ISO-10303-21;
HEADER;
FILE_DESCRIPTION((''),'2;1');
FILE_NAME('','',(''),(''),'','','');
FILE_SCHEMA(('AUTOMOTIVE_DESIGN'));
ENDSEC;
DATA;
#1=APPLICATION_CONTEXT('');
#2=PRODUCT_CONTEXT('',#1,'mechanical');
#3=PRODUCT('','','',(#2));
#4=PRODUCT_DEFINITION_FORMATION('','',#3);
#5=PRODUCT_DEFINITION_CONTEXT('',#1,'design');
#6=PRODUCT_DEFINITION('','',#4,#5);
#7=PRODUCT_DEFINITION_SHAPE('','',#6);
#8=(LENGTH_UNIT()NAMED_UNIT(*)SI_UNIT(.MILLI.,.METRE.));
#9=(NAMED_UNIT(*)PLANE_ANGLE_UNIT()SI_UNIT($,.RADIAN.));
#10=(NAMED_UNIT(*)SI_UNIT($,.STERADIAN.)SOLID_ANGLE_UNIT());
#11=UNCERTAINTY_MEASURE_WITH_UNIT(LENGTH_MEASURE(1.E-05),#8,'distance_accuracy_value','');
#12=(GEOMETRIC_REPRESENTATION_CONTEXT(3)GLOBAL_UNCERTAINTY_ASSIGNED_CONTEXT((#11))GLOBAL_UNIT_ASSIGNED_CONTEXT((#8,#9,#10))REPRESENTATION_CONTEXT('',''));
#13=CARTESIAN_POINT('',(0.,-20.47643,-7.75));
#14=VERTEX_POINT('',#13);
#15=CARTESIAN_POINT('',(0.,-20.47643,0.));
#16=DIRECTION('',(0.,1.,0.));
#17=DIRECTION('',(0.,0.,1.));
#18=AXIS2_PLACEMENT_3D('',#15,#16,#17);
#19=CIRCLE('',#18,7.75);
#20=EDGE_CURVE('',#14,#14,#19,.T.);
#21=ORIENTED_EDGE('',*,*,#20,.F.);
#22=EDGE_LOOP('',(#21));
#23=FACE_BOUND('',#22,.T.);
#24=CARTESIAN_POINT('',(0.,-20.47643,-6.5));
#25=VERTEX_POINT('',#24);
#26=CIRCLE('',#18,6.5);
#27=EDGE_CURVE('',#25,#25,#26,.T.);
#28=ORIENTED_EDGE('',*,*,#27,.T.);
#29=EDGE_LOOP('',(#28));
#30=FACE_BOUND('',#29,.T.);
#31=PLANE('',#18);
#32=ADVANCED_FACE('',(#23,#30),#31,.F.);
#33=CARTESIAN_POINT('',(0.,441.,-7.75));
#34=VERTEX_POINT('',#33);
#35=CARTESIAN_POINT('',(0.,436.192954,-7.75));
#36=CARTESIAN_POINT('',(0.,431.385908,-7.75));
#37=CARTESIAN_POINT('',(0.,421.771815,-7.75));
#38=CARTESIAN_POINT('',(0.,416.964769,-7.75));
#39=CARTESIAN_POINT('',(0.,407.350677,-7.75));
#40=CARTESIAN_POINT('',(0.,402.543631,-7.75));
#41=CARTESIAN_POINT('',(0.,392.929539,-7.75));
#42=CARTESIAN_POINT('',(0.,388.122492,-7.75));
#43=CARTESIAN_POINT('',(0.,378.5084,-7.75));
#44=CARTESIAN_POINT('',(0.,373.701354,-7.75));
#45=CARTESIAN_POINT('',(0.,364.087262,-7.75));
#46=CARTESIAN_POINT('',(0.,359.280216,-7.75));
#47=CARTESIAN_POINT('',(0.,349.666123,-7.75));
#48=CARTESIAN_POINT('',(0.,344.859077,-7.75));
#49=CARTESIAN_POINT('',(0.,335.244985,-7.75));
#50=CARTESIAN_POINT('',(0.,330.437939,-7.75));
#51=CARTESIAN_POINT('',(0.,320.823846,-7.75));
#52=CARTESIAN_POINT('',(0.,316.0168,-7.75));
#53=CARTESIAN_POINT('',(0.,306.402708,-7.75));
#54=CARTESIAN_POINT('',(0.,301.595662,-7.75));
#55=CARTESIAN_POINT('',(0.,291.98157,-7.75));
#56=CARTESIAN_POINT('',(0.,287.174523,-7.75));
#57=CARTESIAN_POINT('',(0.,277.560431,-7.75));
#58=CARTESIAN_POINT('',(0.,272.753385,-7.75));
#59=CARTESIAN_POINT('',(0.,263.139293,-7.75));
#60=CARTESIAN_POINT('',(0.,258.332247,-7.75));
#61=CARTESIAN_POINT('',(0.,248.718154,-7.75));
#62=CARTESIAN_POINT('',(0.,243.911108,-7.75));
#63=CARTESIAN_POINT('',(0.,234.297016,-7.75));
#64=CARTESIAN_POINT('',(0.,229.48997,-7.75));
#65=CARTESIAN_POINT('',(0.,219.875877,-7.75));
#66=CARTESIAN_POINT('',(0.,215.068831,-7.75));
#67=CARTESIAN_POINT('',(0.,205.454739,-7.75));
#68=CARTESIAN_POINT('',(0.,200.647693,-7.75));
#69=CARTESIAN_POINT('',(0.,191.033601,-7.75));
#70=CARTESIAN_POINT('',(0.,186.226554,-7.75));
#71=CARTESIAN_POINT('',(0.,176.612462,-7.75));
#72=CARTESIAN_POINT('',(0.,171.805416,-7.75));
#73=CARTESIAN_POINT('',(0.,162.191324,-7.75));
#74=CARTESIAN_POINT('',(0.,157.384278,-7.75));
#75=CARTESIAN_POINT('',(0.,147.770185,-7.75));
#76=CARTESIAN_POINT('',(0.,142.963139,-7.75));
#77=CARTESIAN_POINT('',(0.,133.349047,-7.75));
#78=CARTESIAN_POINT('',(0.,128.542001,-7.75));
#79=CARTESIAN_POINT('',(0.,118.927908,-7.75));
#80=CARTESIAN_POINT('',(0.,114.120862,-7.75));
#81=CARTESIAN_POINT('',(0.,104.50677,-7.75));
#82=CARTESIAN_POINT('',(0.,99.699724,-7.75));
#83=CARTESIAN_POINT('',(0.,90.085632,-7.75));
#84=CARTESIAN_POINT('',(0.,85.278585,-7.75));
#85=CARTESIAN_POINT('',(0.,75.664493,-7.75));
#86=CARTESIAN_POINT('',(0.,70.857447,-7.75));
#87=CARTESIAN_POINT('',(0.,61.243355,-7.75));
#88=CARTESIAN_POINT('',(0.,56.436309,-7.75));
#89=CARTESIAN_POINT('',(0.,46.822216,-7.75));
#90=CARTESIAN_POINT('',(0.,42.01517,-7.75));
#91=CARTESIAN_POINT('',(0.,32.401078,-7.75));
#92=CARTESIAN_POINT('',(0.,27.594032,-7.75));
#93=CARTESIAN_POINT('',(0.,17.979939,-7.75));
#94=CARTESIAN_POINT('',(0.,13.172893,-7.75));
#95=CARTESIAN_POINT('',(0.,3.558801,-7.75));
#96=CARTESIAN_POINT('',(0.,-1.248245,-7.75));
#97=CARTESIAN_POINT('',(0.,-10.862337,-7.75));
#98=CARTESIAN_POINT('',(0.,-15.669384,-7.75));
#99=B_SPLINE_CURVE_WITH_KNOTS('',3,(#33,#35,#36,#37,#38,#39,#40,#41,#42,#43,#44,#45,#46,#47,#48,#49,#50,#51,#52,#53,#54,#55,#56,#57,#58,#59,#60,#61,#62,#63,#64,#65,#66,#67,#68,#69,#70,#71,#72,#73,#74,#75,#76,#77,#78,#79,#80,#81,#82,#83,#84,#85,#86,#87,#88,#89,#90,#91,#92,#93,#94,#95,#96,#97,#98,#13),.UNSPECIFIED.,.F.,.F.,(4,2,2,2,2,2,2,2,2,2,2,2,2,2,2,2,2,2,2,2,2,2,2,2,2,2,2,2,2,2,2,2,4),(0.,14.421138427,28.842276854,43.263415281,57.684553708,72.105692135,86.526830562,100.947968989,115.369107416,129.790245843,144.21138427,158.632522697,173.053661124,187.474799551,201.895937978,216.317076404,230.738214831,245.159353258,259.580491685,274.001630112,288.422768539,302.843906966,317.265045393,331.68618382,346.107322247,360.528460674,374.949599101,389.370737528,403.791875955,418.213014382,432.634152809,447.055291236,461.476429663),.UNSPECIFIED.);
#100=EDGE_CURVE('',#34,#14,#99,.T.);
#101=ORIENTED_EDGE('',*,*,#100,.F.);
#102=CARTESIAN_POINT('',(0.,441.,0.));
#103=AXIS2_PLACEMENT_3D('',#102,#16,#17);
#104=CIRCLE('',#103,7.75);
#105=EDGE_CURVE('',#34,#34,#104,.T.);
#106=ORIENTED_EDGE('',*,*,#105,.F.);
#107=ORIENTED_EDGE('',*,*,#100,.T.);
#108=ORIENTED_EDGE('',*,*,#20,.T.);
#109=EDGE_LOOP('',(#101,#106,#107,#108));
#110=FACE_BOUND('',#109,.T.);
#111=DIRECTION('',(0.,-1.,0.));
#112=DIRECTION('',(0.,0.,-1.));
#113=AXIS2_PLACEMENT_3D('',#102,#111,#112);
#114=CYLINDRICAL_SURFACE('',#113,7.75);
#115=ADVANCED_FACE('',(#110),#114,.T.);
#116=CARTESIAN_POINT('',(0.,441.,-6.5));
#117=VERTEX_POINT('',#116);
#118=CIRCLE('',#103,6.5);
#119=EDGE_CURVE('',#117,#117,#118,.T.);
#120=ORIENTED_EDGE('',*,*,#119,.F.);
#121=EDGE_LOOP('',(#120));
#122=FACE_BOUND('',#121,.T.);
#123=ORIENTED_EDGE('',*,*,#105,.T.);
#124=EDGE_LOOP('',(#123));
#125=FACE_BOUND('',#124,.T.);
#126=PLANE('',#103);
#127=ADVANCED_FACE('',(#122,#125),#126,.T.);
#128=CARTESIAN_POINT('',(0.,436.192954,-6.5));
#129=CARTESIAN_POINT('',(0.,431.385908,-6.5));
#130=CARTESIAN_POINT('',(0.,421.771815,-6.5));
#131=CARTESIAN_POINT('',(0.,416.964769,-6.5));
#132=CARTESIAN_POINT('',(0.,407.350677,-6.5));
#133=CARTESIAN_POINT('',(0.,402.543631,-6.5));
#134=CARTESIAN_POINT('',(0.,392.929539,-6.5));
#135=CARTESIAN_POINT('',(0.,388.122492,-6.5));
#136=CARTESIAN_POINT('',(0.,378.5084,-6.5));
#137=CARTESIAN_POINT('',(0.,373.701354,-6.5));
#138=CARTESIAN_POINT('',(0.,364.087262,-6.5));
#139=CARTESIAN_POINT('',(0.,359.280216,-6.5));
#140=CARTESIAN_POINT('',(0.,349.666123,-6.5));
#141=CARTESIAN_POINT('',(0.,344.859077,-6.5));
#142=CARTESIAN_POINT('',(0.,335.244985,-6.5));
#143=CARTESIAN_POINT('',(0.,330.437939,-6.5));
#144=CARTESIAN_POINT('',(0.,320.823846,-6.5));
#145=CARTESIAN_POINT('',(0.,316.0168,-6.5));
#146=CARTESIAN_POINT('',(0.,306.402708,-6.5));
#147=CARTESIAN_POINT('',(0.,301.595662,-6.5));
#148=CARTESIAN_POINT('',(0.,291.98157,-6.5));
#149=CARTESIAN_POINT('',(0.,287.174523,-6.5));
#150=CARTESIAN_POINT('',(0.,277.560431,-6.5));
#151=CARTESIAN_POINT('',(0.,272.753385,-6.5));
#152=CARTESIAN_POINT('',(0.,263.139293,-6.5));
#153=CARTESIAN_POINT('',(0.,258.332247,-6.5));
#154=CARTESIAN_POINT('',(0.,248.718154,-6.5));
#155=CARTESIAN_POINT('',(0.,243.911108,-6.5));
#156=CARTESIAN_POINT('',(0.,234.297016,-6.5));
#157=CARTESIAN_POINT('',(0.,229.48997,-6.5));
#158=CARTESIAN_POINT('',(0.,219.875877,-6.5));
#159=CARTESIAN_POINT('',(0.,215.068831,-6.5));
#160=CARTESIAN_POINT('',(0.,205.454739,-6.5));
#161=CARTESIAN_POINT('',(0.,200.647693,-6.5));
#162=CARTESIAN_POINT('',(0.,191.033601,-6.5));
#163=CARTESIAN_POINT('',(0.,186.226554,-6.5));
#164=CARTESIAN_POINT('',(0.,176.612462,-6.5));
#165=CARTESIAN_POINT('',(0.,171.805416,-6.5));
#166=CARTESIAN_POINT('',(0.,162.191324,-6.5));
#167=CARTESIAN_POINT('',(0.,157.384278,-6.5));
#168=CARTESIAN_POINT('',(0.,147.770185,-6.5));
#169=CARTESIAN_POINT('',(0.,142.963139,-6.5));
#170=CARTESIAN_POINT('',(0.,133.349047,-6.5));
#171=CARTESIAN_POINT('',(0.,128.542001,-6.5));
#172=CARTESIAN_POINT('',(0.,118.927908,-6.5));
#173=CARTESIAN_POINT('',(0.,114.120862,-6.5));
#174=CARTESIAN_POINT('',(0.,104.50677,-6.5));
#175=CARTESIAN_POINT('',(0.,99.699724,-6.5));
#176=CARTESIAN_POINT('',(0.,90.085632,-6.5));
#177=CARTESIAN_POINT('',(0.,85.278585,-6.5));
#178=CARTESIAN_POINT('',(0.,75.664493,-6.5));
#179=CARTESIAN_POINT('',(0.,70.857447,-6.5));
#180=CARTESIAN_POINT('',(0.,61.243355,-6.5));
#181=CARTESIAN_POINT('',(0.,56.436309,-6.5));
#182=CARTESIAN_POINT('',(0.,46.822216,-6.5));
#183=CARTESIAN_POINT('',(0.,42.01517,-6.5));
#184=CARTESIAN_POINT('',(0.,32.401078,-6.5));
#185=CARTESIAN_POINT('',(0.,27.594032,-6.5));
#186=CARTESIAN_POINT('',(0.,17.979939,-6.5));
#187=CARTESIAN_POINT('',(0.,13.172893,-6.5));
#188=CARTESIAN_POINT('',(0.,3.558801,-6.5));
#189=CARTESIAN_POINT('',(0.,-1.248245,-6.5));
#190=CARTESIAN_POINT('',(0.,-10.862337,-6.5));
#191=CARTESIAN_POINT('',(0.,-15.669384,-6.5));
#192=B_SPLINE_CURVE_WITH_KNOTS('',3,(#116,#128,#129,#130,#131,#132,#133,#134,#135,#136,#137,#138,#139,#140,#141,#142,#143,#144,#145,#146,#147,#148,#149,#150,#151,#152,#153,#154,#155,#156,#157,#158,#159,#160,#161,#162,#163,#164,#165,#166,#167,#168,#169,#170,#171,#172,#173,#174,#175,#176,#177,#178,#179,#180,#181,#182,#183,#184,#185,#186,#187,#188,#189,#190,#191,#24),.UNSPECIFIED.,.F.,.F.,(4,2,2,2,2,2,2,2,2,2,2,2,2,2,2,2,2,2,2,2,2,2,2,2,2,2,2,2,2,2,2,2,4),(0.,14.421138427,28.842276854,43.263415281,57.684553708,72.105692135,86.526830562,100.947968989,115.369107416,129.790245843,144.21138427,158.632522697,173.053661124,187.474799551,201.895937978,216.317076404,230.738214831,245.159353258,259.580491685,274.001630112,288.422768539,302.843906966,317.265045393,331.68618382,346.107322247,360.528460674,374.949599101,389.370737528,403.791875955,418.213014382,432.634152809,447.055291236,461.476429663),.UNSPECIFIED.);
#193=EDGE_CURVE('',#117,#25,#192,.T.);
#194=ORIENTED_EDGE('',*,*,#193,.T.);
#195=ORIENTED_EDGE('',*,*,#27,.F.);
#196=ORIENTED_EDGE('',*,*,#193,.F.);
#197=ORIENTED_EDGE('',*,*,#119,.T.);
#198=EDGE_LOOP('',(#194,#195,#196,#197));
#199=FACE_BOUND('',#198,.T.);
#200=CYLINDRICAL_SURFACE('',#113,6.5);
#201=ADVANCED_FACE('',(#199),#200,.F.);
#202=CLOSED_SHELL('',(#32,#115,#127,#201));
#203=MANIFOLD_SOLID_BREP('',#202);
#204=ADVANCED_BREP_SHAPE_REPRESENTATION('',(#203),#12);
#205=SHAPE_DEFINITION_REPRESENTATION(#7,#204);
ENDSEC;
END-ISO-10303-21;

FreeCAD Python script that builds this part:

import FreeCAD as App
import Part
import Sketcher

doc = App.newDocument("Part")
params = doc.addObject("Spreadsheet::Sheet", "Params")
for row, (alias, value) in enumerate([
    ("sketch1_diameter", "13 mm"),
    ("sketch1_diameter2", "15.5 mm"),
    ("pad1_length", "441 mm"),
    ("sketch2_diameter", "13 mm"),
    ("sketch2_diameter2", "15.5 mm"),
    ("pad2_length", "20.47643 mm"),
], start=1):
    params.set(f"A{row}", alias)
    params.set(f"B{row}", "=" + value)
    params.setAlias(f"B{row}", alias)

body = doc.addObject("PartDesign::Body", "Body")

# Sketch on XZ plane
sketch1 = doc.addObject("Sketcher::SketchObject", "Sketch")
body.addObject(sketch1)
sketch1.AttachmentSupport = (doc.XZ_Plane, [""])
sketch1.MapMode = "FlatFace"
sketch1.addGeometry([
    Part.Circle(App.Vector(0, 0, 0), App.Vector(0, 0, 1), 8),
    Part.Circle(App.Vector(0, 0, 0), App.Vector(0, 0, 1), 6),
], False)
sketch1.addConstraint([
    Sketcher.Constraint("Coincident", 0, 3, -1, 1),
    Sketcher.Constraint("Coincident", 1, 3, -1, 1),
    Sketcher.Constraint("Diameter", 1, 13.0),
    Sketcher.Constraint("Diameter", 0, 15.5),
])
sketch1.setExpression("Constraints[2]", "Params.sketch1_diameter")
sketch1.setExpression("Constraints[3]", "Params.sketch1_diameter2")
pad1 = doc.addObject("PartDesign::Pad", "Pad")
body.addObject(pad1)
pad1.Profile = sketch1
pad1.setExpression("Length", "Params.pad1_length")
pad1.Reversed = True

# Sketch on XZ plane
sketch2 = doc.addObject("Sketcher::SketchObject", "Sketch001")
body.addObject(sketch2)
sketch2.AttachmentSupport = (doc.XZ_Plane, [""])
sketch2.MapMode = "FlatFace"
sketch2.AttachmentOffset = App.Placement(App.Vector(0, 0, 20.47643), App.Rotation())
sketch2.addGeometry([
    Part.Circle(App.Vector(0, 0, 0), App.Vector(0, 0, 1), 8),
    Part.Circle(App.Vector(0, 0, 0), App.Vector(0, 0, 1), 6),
], False)
sketch2.addConstraint([
    Sketcher.Constraint("Coincident", 0, 3, -1, 1),
    Sketcher.Constraint("Coincident", 1, 3, -1, 1),
    Sketcher.Constraint("Diameter", 1, 13.0),
    Sketcher.Constraint("Diameter", 0, 15.5),
])
sketch2.setExpression("Constraints[2]", "Params.sketch2_diameter")
sketch2.setExpression("Constraints[3]", "Params.sketch2_diameter2")
pad2 = doc.addObject("PartDesign::Pad", "Pad001")
body.addObject(pad2)
pad2.Profile = sketch2
pad2.setExpression("Length", "Params.pad2_length")
pad2.Reversed = True

doc.recompute()
